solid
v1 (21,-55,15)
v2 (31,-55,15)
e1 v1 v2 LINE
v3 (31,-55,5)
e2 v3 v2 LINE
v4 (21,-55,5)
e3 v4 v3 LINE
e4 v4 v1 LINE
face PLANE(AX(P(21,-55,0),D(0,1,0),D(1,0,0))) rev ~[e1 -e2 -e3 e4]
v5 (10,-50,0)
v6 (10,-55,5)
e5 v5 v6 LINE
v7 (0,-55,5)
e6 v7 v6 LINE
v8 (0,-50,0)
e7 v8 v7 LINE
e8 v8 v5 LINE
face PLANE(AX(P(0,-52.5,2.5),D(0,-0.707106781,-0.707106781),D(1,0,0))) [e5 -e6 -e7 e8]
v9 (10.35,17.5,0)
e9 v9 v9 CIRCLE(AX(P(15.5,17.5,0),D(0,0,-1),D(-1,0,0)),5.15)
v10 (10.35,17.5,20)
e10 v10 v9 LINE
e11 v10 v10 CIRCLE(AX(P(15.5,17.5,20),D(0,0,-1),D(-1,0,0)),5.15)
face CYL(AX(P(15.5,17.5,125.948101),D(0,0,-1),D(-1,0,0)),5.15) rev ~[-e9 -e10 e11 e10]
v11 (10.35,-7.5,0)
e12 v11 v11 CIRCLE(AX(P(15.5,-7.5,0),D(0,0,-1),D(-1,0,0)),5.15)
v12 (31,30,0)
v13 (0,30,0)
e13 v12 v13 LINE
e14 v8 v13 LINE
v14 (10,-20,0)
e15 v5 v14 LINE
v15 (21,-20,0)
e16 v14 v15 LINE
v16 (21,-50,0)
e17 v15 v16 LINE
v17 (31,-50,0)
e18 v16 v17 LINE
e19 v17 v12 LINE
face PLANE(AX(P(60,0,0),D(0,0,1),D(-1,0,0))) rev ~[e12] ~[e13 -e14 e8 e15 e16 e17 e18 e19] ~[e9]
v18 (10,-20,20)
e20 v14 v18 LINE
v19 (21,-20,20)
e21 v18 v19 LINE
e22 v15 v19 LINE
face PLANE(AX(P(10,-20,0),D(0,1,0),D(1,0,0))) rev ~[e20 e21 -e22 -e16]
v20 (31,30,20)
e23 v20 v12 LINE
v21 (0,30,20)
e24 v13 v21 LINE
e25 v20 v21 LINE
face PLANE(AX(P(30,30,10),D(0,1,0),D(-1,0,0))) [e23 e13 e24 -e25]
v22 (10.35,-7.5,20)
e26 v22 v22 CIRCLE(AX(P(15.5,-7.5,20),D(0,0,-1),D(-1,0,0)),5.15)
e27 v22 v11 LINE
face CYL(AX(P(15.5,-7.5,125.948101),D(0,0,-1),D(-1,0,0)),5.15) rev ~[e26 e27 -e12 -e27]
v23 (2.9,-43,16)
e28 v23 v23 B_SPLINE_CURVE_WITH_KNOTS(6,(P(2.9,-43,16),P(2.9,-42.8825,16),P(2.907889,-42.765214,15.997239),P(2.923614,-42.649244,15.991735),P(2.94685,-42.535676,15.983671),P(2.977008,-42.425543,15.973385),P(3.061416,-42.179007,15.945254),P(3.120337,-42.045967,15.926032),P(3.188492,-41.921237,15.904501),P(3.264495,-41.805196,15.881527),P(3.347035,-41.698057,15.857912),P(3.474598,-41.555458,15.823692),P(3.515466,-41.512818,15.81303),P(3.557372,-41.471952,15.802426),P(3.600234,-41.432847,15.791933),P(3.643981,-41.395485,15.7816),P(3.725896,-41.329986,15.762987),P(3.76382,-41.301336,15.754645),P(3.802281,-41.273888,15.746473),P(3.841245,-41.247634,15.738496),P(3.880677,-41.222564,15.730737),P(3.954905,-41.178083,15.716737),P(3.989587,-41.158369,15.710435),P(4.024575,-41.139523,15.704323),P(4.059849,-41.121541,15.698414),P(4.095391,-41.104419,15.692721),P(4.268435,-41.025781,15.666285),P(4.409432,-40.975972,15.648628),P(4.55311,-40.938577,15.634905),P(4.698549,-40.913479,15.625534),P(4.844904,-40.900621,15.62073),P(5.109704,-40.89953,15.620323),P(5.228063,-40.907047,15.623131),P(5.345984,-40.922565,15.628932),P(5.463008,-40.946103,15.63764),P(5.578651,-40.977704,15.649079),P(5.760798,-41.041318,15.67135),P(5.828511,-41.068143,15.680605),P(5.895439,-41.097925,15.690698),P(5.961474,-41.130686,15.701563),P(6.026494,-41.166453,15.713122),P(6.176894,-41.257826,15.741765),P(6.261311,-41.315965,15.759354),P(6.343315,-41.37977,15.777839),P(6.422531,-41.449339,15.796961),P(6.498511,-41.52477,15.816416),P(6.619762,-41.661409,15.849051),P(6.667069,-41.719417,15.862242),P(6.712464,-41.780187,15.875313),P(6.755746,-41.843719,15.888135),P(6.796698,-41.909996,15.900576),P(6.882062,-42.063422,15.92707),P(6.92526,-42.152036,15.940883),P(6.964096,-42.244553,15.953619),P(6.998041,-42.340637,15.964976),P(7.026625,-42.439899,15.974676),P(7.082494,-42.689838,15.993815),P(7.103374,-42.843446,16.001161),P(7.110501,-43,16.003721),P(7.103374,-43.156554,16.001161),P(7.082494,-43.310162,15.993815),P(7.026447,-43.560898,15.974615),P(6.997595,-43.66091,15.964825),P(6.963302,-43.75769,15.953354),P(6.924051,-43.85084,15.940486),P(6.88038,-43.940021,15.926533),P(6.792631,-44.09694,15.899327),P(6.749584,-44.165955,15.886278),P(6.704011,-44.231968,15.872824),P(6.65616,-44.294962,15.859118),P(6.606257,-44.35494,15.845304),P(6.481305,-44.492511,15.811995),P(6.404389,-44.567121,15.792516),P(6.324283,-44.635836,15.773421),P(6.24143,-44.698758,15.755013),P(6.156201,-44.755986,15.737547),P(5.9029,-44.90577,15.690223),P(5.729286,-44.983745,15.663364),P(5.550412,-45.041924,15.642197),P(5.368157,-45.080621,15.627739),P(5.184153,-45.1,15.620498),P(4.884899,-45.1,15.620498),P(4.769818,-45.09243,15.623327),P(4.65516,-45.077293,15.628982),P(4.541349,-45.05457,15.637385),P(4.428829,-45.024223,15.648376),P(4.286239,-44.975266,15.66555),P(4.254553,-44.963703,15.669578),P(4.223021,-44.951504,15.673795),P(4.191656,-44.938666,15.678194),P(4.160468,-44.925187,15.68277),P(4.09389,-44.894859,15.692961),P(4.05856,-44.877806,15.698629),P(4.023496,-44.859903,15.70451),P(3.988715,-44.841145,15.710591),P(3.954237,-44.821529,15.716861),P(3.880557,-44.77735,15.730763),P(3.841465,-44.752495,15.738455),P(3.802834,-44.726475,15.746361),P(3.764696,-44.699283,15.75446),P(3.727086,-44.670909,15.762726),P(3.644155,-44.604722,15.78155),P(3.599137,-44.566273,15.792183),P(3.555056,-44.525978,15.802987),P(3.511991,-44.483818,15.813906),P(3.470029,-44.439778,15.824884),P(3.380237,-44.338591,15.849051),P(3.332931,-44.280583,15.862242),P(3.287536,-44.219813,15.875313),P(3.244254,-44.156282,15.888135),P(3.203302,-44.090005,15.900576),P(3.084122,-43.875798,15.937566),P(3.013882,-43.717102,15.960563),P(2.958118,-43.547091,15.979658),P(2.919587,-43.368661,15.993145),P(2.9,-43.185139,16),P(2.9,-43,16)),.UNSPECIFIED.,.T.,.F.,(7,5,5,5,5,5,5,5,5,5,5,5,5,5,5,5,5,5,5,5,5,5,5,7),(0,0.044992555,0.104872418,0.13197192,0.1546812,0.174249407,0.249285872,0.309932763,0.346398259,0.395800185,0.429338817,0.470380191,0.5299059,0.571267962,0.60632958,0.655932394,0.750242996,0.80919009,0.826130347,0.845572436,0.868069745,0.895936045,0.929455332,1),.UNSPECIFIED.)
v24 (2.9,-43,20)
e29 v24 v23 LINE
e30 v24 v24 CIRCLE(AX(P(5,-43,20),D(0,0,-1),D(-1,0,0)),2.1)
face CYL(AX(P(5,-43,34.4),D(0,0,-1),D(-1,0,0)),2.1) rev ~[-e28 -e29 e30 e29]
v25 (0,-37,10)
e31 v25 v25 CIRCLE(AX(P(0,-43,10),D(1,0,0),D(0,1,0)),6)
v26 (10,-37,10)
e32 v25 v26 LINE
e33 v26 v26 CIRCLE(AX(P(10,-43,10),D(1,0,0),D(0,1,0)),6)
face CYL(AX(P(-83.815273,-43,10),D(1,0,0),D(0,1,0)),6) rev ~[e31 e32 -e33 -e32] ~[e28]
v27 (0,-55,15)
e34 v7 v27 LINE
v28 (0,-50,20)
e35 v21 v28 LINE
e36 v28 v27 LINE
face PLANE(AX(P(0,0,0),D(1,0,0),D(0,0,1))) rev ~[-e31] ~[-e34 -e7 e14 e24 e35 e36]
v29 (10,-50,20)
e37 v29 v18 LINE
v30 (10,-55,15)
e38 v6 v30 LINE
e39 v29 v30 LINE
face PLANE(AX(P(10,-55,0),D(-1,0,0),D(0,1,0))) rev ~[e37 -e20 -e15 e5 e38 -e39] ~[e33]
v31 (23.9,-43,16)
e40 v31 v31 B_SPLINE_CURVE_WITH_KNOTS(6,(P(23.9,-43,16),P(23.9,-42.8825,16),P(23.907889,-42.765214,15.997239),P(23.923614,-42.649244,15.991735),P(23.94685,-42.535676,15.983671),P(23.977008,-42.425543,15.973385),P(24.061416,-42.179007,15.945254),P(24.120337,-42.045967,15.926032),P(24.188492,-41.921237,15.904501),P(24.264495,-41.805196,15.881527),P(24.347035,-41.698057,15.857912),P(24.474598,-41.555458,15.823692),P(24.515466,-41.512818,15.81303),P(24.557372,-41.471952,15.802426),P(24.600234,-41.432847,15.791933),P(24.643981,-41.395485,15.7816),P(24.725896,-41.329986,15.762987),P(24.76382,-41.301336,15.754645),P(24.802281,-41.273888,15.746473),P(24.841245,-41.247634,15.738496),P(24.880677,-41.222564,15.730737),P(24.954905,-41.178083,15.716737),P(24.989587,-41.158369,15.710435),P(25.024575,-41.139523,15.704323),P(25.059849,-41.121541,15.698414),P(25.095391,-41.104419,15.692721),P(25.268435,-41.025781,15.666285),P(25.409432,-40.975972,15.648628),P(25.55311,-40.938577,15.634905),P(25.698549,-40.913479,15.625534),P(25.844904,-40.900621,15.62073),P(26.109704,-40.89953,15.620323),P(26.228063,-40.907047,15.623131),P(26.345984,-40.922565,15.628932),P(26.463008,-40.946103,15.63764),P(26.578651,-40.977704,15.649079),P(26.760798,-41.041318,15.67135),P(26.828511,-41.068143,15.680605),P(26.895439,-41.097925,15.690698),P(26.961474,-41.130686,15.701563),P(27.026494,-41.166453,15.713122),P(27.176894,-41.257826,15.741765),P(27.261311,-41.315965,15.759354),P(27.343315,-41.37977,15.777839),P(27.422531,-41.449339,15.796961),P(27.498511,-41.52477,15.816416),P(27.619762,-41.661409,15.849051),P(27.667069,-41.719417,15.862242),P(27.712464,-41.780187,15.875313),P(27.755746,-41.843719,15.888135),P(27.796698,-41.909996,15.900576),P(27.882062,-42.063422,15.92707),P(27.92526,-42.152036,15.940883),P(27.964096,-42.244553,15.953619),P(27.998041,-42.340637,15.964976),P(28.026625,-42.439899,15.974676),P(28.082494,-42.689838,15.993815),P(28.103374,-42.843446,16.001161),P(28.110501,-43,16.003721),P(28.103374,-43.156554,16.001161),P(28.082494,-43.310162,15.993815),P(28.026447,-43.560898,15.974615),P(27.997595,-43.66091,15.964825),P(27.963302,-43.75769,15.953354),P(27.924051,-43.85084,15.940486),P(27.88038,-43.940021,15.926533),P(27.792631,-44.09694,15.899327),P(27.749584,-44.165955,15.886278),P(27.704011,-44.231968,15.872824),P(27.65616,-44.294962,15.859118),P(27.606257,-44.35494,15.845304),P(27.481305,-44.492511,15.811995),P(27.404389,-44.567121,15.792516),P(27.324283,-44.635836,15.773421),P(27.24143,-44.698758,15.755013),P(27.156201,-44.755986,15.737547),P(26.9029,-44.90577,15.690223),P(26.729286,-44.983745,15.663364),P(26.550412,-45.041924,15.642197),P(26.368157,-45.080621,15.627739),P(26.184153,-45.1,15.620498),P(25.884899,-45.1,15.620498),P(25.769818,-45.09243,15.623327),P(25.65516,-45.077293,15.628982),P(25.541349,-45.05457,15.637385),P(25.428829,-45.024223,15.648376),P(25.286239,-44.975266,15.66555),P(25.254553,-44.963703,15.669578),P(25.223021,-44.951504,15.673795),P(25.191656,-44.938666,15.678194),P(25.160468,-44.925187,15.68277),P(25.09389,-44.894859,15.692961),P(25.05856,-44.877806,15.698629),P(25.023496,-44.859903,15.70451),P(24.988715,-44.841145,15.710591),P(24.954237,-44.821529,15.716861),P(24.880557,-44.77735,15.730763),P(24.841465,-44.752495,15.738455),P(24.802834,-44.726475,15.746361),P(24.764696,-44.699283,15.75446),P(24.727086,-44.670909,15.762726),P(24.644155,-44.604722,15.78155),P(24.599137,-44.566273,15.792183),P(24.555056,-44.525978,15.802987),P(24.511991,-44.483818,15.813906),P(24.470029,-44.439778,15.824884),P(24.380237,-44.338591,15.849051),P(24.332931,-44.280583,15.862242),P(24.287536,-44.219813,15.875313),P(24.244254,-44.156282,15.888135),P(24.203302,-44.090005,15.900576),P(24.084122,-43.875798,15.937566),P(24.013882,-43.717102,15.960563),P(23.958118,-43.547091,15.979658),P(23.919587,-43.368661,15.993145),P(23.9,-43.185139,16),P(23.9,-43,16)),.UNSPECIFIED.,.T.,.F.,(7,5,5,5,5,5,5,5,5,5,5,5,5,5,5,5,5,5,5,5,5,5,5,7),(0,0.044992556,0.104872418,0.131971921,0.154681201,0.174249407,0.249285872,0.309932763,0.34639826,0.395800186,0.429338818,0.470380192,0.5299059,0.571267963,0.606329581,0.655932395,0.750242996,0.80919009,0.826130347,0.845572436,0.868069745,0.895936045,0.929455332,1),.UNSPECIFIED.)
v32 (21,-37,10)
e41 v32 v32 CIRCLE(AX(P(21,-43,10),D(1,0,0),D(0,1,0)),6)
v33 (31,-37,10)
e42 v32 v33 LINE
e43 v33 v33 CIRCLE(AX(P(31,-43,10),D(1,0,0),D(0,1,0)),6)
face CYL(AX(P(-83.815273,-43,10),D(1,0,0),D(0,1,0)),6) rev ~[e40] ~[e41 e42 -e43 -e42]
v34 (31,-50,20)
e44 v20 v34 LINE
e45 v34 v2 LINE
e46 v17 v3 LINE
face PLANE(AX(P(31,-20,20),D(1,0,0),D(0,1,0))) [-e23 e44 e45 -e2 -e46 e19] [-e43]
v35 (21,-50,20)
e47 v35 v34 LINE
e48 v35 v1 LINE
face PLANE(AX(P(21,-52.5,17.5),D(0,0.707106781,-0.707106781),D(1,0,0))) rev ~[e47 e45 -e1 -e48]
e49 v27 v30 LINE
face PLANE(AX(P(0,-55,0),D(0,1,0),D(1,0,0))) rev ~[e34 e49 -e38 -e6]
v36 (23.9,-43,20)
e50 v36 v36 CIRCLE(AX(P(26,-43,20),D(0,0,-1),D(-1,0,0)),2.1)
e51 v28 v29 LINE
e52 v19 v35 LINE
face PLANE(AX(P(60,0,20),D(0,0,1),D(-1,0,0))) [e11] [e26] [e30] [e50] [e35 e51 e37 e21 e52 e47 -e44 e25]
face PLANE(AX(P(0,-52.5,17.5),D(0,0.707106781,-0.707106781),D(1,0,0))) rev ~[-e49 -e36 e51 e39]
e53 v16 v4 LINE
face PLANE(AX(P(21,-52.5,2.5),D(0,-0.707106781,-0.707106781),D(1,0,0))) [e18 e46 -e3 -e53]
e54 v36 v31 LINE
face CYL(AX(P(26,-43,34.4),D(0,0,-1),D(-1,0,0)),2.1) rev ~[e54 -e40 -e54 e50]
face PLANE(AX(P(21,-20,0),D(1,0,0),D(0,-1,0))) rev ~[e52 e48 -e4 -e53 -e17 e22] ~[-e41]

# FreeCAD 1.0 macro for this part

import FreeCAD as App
import Part
import Sketcher


def edges_at(feature, points):
    """Names of the edges that pass closest to the given points."""
    edges = feature.Shape.Edges
    near = lambda p: min(range(len(edges)), key=lambda i: edges[i].distToShape(Part.Vertex(*p))[0])
    return sorted({f"Edge{near(p) + 1}" for p in points})


def add_polygon(sketch, points):
    """Adds a closed chain of lines whose ends are joined by coincident constraints."""
    first, n = sketch.GeometryCount, len(points)
    for a, b in zip(points, points[1:] + points[:1]):
        sketch.addGeometry(Part.LineSegment(App.Vector(*a, 0), App.Vector(*b, 0)), False)
    for i in range(n):
        sketch.addConstraint(Sketcher.Constraint("Coincident", first + i, 2, first + (i + 1) % n, 1))

doc = App.newDocument("Part")
params = doc.addObject("Spreadsheet::Sheet", "Params")
for row, (alias, value) in enumerate([
    ("sketch1_width", "60 mm"),
    ("sketch1_width2", "10 mm"),
    ("sketch1_width3", "11 mm"),
    ("sketch1_height", "55 mm"),
    ("sketch1_height2", "35 mm"),
    ("pad1_length", "20 mm"),
    ("sketch2_diameter", "12 mm"),
    ("hole_diameter", "12 mm"),
    ("sketch3_diameter", "4.2 mm"),
    ("hole2_diameter", "4.2 mm"),
    ("hole2_depth", "14.4 mm"),
    ("chamfer_size", "5 mm"),
    ("sketch4_width", "60 mm"),
    ("sketch4_height", "20 mm"),
    ("pad2_length", "30 mm"),
    ("sketch5_diameter", "10.3 mm"),
    ("hole3_diameter", "10.3 mm"),
    ("sketch6_width", "29 mm"),
    ("sketch6_height", "50 mm"),
], start=1):
    params.set(f"A{row}", alias)
    params.set(f"B{row}", "=" + value)
    params.setAlias(f"B{row}", alias)

body = doc.addObject("PartDesign::Body", "Body")

sketch1 = body.newObject("Sketcher::SketchObject", "Sketch")
sketch1.AttachmentSupport = (doc.getObject("XY_Plane"), [""])
sketch1.MapMode = "FlatFace"
add_polygon(sketch1, [(60, 0), (0, 0), (0, -55), (10, -55), (10, -20), (21, -20), (21, -55), (31, -55), (31, -20), (60, -20)])
sketch1.addConstraint([
    Sketcher.Constraint("Horizontal", 0),
    Sketcher.Constraint("Vertical", 1),
    Sketcher.Constraint("Horizontal", 2),
    Sketcher.Constraint("Vertical", 3),
    Sketcher.Constraint("Horizontal", 4),
    Sketcher.Constraint("Vertical", 5),
    Sketcher.Constraint("Horizontal", 6),
    Sketcher.Constraint("Vertical", 7),
    Sketcher.Constraint("Horizontal", 8),
    Sketcher.Constraint("Vertical", 9),
    Sketcher.Constraint("Coincident", 0, 2, -1, 1),
    Sketcher.Constraint("Horizontal", 2, 2, 5, 2),
    Sketcher.Constraint("Horizontal", 4, 2, 7, 2),
    Sketcher.Constraint("Equal", 2, 6),
    Sketcher.Constraint("DistanceX", 0, 2, 0, 1, 60.0),
    Sketcher.Constraint("DistanceX", 2, 1, 2, 2, 10.0),
    Sketcher.Constraint("DistanceX", 4, 1, 4, 2, 11.0),
    Sketcher.Constraint("DistanceY", 1, 2, 1, 1, 55.0),
    Sketcher.Constraint("DistanceY", 3, 1, 3, 2, 35.0),
])
sketch1.setExpression("Constraints[24]", "Params.sketch1_width")
sketch1.setExpression("Constraints[25]", "Params.sketch1_width2")
sketch1.setExpression("Constraints[26]", "Params.sketch1_width3")
sketch1.setExpression("Constraints[27]", "Params.sketch1_height")
sketch1.setExpression("Constraints[28]", "Params.sketch1_height2")
pad1 = body.newObject("PartDesign::Pad", "Pad")
pad1.Profile = sketch1
pad1.setExpression("Length", "Params.pad1_length")

sketch2 = body.newObject("Sketcher::SketchObject", "Sketch001")
sketch2.AttachmentSupport = (doc.getObject("YZ_Plane"), [""])
sketch2.MapMode = "FlatFace"
sketch2.addGeometry(Part.Circle(App.Vector(-43, 10, 0), App.Vector(0, 0, 1), 6), False)
sketch2.addConstraint([
    Sketcher.Constraint("Diameter", 0, 12.0),
    Sketcher.Constraint("DistanceX", 0, 3, -1, 1, 43.0),
    Sketcher.Constraint("DistanceY", -1, 1, 0, 3, 10.0),
])
sketch2.setExpression("Constraints[0]", "Params.sketch2_diameter")
doc.recompute()
hole = body.newObject("PartDesign::Hole", "Hole")
hole.Profile = sketch2
hole.ThreadType = "None"
hole.setExpression("Diameter", "Params.hole_diameter")
hole.DepthType = "ThroughAll"
hole.Reversed = True

sketch3 = body.newObject("Sketcher::SketchObject", "Sketch002")
sketch3.AttachmentSupport = (doc.getObject("XY_Plane"), [""])
sketch3.MapMode = "FlatFace"
sketch3.AttachmentOffset = App.Placement(App.Vector(0, 0, 20), App.Rotation())
sketch3.addGeometry([
    Part.Circle(App.Vector(5, -43, 0), App.Vector(0, 0, 1), 2.1),
    Part.Circle(App.Vector(26, -43, 0), App.Vector(0, 0, 1), 2.1),
], False)
sketch3.addConstraint([
    Sketcher.Constraint("Equal", 0, 1),
    Sketcher.Constraint("Horizontal", 0, 3, 1, 3),
    Sketcher.Constraint("Diameter", 0, 4.2),
    Sketcher.Constraint("DistanceX", -1, 1, 0, 3, 5.0),
    Sketcher.Constraint("DistanceY", 0, 3, -1, 1, 43.0),
    Sketcher.Constraint("DistanceX", -1, 1, 1, 3, 26.0),
])
sketch3.setExpression("Constraints[2]", "Params.sketch3_diameter")
doc.recompute()
hole2 = body.newObject("PartDesign::Hole", "Hole001")
hole2.Profile = sketch3
hole2.ThreadType = "None"
hole2.setExpression("Diameter", "Params.hole2_diameter")
hole2.DepthType = "Dimension"
hole2.setExpression("Depth", "Params.hole2_depth")
hole2.DrillPoint = "Angled"
hole2.DrillPointAngle = 118
doc.recompute()

chamfer = body.newObject("PartDesign::Chamfer", "Chamfer")
chamfer.Base = (hole2, edges_at(hole2, [
    (5, -55, 20),
    (26, -55, 20),
    (26, -55, 0),
    (5, -55, 0),
]))
chamfer.setExpression("Size", "Params.chamfer_size")

sketch4 = body.newObject("Sketcher::SketchObject", "Sketch003")
sketch4.AttachmentSupport = (doc.getObject("XZ_Plane"), [""])
sketch4.MapMode = "FlatFace"
add_polygon(sketch4, [(60, 20), (60, 0), (0, 0), (0, 20)])
sketch4.addConstraint([
    Sketcher.Constraint("Vertical", 0),
    Sketcher.Constraint("Horizontal", 1),
    Sketcher.Constraint("Vertical", 2),
    Sketcher.Constraint("Horizontal", 3),
    Sketcher.Constraint("Coincident", 1, 2, -1, 1),
    Sketcher.Constraint("DistanceX", 1, 2, 1, 1, 60.0),
    Sketcher.Constraint("DistanceY", 0, 2, 0, 1, 20.0),
])
sketch4.setExpression("Constraints[9]", "Params.sketch4_width")
sketch4.setExpression("Constraints[10]", "Params.sketch4_height")
pad2 = body.newObject("PartDesign::Pad", "Pad001")
pad2.Profile = sketch4
pad2.setExpression("Length", "Params.pad2_length")
pad2.Reversed = True

sketch5 = body.newObject("Sketcher::SketchObject", "Sketch004")
sketch5.AttachmentSupport = (doc.getObject("XY_Plane"), [""])
sketch5.MapMode = "FlatFace"
sketch5.AttachmentOffset = App.Placement(App.Vector(0, 0, 20), App.Rotation())
sketch5.addGeometry([
    Part.Circle(App.Vector(15.5, 17.5, 0), App.Vector(0, 0, 1), 5.15),
    Part.Circle(App.Vector(15.5, -7.5, 0), App.Vector(0, 0, 1), 5.15),
], False)
sketch5.addConstraint([
    Sketcher.Constraint("Equal", 0, 1),
    Sketcher.Constraint("Vertical", 0, 3, 1, 3),
    Sketcher.Constraint("Diameter", 0, 10.3),
    Sketcher.Constraint("DistanceY", 1, 3, 0, 3, 25.0),
    Sketcher.Constraint("DistanceX", -1, 1, 0, 3, 15.5),
    Sketcher.Constraint("DistanceY", -1, 1, 0, 3, 17.5),
])
sketch5.setExpression("Constraints[2]", "Params.sketch5_diameter")
doc.recompute()
hole3 = body.newObject("PartDesign::Hole", "Hole002")
hole3.Profile = sketch5
hole3.ThreadType = "None"
hole3.setExpression("Diameter", "Params.hole3_diameter")
hole3.DepthType = "ThroughAll"

sketch6 = body.newObject("Sketcher::SketchObject", "Sketch005")
sketch6.AttachmentSupport = (doc.getObject("XY_Plane"), [""])
sketch6.MapMode = "FlatFace"
sketch6.AttachmentOffset = App.Placement(App.Vector(0, 0, 20), App.Rotation())
add_polygon(sketch6, [(31, 30), (31, -20), (60, -20), (60, 30)])
sketch6.addConstraint([
    Sketcher.Constraint("Vertical", 0),
    Sketcher.Constraint("Horizontal", 1),
    Sketcher.Constraint("Vertical", 2),
    Sketcher.Constraint("Horizontal", 3),
    Sketcher.Constraint("DistanceX", 1, 1, 1, 2, 29.0),
    Sketcher.Constraint("DistanceY", 0, 2, 0, 1, 50.0),
    Sketcher.Constraint("DistanceX", -1, 1, 0, 2, 31.0),
    Sketcher.Constraint("DistanceY", 0, 2, -1, 1, 20.0),
])
sketch6.setExpression("Constraints[8]", "Params.sketch6_width")
sketch6.setExpression("Constraints[9]", "Params.sketch6_height")
pocket1 = body.newObject("PartDesign::Pocket", "Pocket")
pocket1.Profile = sketch6
pocket1.Type = "ThroughAll"

doc.recompute()
